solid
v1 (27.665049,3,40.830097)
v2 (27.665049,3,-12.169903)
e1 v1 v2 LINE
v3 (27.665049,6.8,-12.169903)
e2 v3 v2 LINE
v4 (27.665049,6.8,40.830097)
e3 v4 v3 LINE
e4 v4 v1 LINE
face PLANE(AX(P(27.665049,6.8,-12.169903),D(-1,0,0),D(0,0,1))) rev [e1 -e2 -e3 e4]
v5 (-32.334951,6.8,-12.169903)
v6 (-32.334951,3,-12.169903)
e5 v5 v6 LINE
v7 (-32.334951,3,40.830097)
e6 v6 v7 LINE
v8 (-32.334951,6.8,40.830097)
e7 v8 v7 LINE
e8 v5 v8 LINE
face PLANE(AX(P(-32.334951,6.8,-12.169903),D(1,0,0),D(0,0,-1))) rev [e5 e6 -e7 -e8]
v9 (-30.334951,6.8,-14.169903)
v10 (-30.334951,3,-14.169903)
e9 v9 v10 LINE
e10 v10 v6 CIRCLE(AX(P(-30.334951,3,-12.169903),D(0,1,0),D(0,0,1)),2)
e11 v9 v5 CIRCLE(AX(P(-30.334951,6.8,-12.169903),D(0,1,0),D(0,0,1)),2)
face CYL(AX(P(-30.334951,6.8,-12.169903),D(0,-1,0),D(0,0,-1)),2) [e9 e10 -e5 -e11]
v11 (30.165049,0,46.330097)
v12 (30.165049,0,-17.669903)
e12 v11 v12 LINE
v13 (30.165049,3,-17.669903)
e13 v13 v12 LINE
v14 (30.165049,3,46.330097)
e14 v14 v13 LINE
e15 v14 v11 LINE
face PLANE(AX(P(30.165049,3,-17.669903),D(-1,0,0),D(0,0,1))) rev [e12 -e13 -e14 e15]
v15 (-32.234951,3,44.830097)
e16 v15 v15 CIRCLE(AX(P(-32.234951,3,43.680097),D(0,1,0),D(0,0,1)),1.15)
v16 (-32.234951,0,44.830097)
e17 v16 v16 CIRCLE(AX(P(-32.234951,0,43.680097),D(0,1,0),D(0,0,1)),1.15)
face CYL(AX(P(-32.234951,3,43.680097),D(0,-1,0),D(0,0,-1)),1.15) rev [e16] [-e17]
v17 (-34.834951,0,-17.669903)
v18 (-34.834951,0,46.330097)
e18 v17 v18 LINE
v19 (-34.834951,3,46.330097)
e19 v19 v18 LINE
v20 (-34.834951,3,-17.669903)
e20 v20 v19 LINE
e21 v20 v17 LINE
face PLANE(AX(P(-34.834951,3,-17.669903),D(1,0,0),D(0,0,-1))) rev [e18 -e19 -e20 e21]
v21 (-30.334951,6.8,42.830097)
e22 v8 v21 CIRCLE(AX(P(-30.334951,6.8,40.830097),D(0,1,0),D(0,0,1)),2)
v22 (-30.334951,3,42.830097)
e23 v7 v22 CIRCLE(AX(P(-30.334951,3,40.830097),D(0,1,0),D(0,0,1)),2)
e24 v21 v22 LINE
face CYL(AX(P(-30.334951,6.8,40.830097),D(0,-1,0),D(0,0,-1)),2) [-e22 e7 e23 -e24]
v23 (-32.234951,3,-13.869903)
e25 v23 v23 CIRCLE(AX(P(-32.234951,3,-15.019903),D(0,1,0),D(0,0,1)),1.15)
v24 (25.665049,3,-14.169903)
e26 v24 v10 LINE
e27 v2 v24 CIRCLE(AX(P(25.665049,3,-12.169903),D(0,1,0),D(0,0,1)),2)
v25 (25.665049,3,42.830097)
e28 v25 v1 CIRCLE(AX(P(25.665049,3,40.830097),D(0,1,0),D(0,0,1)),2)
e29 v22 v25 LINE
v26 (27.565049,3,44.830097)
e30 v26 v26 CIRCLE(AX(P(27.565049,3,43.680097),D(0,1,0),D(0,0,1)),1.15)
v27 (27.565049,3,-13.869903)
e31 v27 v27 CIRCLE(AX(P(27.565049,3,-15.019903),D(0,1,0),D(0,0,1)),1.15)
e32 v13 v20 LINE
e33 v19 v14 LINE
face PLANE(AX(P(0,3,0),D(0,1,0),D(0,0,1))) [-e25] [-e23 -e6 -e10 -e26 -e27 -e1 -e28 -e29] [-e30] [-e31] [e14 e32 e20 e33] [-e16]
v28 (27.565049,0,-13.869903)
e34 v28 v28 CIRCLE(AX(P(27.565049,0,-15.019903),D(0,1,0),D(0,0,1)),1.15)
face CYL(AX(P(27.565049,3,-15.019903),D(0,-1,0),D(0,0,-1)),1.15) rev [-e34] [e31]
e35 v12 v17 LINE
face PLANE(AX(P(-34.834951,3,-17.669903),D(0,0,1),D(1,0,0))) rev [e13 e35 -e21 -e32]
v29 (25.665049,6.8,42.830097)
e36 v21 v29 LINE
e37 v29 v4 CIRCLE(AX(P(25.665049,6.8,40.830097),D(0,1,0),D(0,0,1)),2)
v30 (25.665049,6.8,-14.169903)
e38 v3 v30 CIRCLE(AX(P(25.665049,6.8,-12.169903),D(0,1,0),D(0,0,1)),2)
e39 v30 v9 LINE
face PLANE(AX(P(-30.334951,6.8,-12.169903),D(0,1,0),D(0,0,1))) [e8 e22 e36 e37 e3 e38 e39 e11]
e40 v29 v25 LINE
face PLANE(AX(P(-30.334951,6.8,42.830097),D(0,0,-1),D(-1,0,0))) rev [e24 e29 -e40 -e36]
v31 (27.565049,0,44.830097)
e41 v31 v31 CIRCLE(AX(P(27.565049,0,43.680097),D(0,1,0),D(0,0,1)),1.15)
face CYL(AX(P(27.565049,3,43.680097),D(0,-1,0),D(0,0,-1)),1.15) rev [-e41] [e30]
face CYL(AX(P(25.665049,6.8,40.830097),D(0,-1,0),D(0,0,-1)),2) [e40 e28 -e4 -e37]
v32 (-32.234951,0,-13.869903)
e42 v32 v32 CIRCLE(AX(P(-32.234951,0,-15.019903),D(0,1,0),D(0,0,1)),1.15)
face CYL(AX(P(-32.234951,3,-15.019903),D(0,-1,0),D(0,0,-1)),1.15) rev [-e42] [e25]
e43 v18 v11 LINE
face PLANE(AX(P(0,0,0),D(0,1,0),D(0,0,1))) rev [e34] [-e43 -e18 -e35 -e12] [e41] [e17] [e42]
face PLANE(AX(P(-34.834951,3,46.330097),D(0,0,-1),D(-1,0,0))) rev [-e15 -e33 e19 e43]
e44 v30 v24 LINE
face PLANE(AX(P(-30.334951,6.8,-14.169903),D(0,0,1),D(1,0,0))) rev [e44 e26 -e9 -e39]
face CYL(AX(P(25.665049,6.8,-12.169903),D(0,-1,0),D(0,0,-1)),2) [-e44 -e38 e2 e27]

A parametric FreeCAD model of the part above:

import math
import FreeCAD as App
import Part
import Sketcher

V = App.Vector
Q = App.Units.Quantity


def add_polygon(sketch, points):
    """Adds a closed chain of lines whose ends are joined by coincident constraints."""
    first, n = sketch.GeometryCount, len(points)
    for a, b in zip(points, points[1:] + points[:1]):
        sketch.addGeometry(Part.LineSegment(App.Vector(*a, 0), App.Vector(*b, 0)), False)
    for i in range(n):
        sketch.addConstraint(Sketcher.Constraint("Coincident", first + i, 2, first + (i + 1) % n, 1))

doc = App.newDocument("Part")
params = doc.addObject("Spreadsheet::Sheet", "Params")
for row, (alias, value) in enumerate([
    ("sketch1_diameter", "2.3 mm"),
    ("sketch1_width", "65 mm"),
    ("sketch1_height", "64 mm"),
    ("pad1_length", "3 mm"),
    ("sketch2_radius", "2 mm"),
    ("sketch2_width", "56 mm"),
    ("sketch2_height", "53 mm"),
    ("pad2_length", "3.8 mm"),
], start=1):
    params.set(f"A{row}", alias)
    params.set(f"B{row}", "=" + value)
    params.setAlias(f"B{row}", alias)

body = doc.addObject("PartDesign::Body", "Body")

# Sketch on XZ plane
sketch1 = doc.addObject("Sketcher::SketchObject", "Sketch")
body.addObject(sketch1)
sketch1.AttachmentSupport = (doc.XZ_Plane, [""])
sketch1.MapMode = "FlatFace"
add_polygon(sketch1, [(-34.8, -17.7), (-34.8, 46.3), (30.2, 46.3), (30.2, -17.7)])  # lines 0-3
sketch1.addGeometry(Part.Circle(V(-32.2, 43.7, 0), V(0, 0, 1), 1.1), False)  # 4
sketch1.addGeometry(Part.Circle(V(27.6, 43.7, 0), V(0, 0, 1), 1.1), False)  # 5
sketch1.addGeometry(Part.Circle(V(-32.2, -15, 0), V(0, 0, 1), 1.1), False)  # 6
sketch1.addGeometry(Part.Circle(V(27.6, -15, 0), V(0, 0, 1), 1.1), False)  # 7
sketch1.addConstraint([
    Sketcher.Constraint("Vertical", 0),
    Sketcher.Constraint("Horizontal", 1),
    Sketcher.Constraint("Vertical", 2),
    Sketcher.Constraint("Horizontal", 3),
    Sketcher.Constraint("Equal", 4, 5),
    Sketcher.Constraint("Equal", 5, 6),
    Sketcher.Constraint("Equal", 6, 7),
    Sketcher.Constraint("Horizontal", 4, 3, 5, 3),
    Sketcher.Constraint("Horizontal", 6, 3, 7, 3),
    Sketcher.Constraint("Vertical", 4, 3, 6, 3),
    Sketcher.Constraint("Vertical", 5, 3, 7, 3),
    Sketcher.Constraint("Diameter", 4, Q("2.3 mm")),
    Sketcher.Constraint("DistanceX", 1, 1, 1, 2, Q("65 mm")),
    Sketcher.Constraint("DistanceY", 0, 1, 0, 2, Q("64 mm")),
    Sketcher.Constraint("DistanceX", 4, 3, 5, 3, Q("59.8 mm")),
    Sketcher.Constraint("DistanceY", 6, 3, 4, 3, Q("58.7 mm")),
    Sketcher.Constraint("DistanceX", 0, 2, 4, 3, Q("2.6 mm")),
    Sketcher.Constraint("DistanceY", 4, 3, 0, 2, Q("2.65 mm")),
    Sketcher.Constraint("DistanceX", 4, 3, -1, 1, Q("32.234951 mm")),
    Sketcher.Constraint("DistanceY", -1, 1, 4, 3, Q("43.680097 mm")),
])
sketch1.setExpression("Constraints[15]", "Params.sketch1_diameter")
sketch1.setExpression("Constraints[16]", "Params.sketch1_width")
sketch1.setExpression("Constraints[17]", "Params.sketch1_height")
pad1 = doc.addObject("PartDesign::Pad", "Pad")
body.addObject(pad1)
pad1.Profile = sketch1
pad1.setExpression("Length", "Params.pad1_length")
pad1.Reversed = True

# Sketch on XZ plane
sketch2 = doc.addObject("Sketcher::SketchObject", "Sketch001")
body.addObject(sketch2)
sketch2.AttachmentSupport = (doc.XZ_Plane, [""])
sketch2.MapMode = "FlatFace"
sketch2.AttachmentOffset = App.Placement(V(0, 0, -3), App.Rotation())
sketch2.addGeometry([
    Part.LineSegment(V(25.7, -14.2, 0), V(-30.3, -14.2, 0)),  # 0
    Part.ArcOfCircle(Part.Circle(V(-30.3, -12.2, 0), V(0, 0, 1), 2), math.radians(180), math.radians(270)),  # 1
    Part.LineSegment(V(-32.3, -12.2, 0), V(-32.3, 40.8, 0)),  # 2
    Part.ArcOfCircle(Part.Circle(V(-30.3, 40.8, 0), V(0, 0, 1), 2), math.radians(90), math.radians(180)),  # 3
    Part.LineSegment(V(-30.3, 42.8, 0), V(25.7, 42.8, 0)),  # 4
    Part.ArcOfCircle(Part.Circle(V(25.7, 40.8, 0), V(0, 0, 1), 2), math.radians(0), math.radians(90)),  # 5
    Part.LineSegment(V(27.7, 40.8, 0), V(27.7, -12.2, 0)),  # 6
    Part.ArcOfCircle(Part.Circle(V(25.7, -12.2, 0), V(0, 0, 1), 2), math.radians(-90), math.radians(0)),  # 7
], False)
sketch2.addConstraint([
    Sketcher.Constraint("Tangent", 0, 2, 1, 2),
    Sketcher.Constraint("Tangent", 1, 1, 2, 1),
    Sketcher.Constraint("Tangent", 2, 2, 3, 2),
    Sketcher.Constraint("Tangent", 3, 1, 4, 1),
    Sketcher.Constraint("Tangent", 4, 2, 5, 2),
    Sketcher.Constraint("Tangent", 5, 1, 6, 1),
    Sketcher.Constraint("Tangent", 6, 2, 7, 2),
    Sketcher.Constraint("Tangent", 7, 1, 0, 1),
    Sketcher.Constraint("Horizontal", 0),
    Sketcher.Constraint("Vertical", 2),
    Sketcher.Constraint("Horizontal", 4),
    Sketcher.Constraint("Vertical", 6),
    Sketcher.Constraint("Equal", 1, 3),
    Sketcher.Constraint("Equal", 3, 5),
    Sketcher.Constraint("Equal", 5, 7),
    Sketcher.Constraint("Radius", 1, Q("2 mm")),
    Sketcher.Constraint("DistanceX", 0, 2, 0, 1, Q("56 mm")),
    Sketcher.Constraint("DistanceY", 2, 1, 2, 2, Q("53 mm")),
    Sketcher.Constraint("DistanceX", 1, 3, -1, 1, Q("30.334951 mm")),
    Sketcher.Constraint("DistanceY", 1, 3, -1, 1, Q("12.169903 mm")),
])
sketch2.setExpression("Constraints[15]", "Params.sketch2_radius")
sketch2.setExpression("Constraints[16]", "Params.sketch2_width")
sketch2.setExpression("Constraints[17]", "Params.sketch2_height")
pad2 = doc.addObject("PartDesign::Pad", "Pad001")
body.addObject(pad2)
pad2.Profile = sketch2
pad2.setExpression("Length", "Params.pad2_length")
pad2.Reversed = True

doc.recompute()
